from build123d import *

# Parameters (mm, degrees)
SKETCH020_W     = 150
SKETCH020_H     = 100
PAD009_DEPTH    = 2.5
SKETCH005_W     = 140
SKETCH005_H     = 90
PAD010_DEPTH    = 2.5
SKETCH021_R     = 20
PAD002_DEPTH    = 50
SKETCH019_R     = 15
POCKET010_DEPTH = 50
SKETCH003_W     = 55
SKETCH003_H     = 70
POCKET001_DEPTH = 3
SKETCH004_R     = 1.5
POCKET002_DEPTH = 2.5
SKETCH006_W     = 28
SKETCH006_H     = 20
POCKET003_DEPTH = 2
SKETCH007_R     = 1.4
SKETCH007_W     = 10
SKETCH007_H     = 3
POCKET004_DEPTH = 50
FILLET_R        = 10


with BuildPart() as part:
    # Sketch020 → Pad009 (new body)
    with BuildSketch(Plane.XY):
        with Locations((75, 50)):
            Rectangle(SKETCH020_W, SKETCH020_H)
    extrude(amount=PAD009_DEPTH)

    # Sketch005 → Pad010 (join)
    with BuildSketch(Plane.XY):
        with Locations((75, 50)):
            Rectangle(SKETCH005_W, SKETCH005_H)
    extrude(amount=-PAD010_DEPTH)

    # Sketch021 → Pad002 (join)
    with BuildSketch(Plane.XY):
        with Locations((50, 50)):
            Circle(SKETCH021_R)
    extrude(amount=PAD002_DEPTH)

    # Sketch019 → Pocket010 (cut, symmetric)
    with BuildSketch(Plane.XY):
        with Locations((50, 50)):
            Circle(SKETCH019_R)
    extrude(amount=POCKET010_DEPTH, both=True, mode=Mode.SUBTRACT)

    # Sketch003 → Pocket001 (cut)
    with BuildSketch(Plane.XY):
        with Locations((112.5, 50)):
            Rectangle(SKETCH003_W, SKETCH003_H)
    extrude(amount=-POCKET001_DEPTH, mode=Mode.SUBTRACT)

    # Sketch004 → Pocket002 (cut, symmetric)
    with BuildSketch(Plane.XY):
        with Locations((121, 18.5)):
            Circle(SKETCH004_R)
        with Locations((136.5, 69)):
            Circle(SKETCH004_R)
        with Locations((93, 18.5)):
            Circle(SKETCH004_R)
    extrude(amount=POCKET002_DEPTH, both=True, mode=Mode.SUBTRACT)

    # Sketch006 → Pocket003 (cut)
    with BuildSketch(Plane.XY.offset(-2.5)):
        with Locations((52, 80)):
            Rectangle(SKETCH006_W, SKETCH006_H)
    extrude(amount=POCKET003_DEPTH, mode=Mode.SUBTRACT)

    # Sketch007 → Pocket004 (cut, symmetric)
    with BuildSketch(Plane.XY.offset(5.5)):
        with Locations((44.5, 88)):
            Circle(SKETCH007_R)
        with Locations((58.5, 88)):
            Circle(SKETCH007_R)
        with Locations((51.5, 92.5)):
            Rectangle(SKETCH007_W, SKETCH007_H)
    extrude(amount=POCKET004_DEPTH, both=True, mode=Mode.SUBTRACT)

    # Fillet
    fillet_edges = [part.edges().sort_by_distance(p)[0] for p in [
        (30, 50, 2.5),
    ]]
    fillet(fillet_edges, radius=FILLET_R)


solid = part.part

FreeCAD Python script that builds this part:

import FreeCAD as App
import Part
import Sketcher
from FreeCAD import Vector


def edges_at(feature, points):
    """Names of the edges that pass closest to the given points."""
    edges = feature.Shape.Edges
    near = lambda p: min(range(len(edges)), key=lambda i: edges[i].distToShape(Part.Vertex(*p))[0])
    return sorted({f"Edge{near(p) + 1}" for p in points})


def add_polygon(sketch, points):
    """Adds a closed chain of lines whose ends are joined by coincident constraints."""
    first, n = sketch.GeometryCount, len(points)
    for a, b in zip(points, points[1:] + points[:1]):
        sketch.addGeometry(Part.LineSegment(App.Vector(*a, 0), App.Vector(*b, 0)), False)
    for i in range(n):
        sketch.addConstraint(Sketcher.Constraint("Coincident", first + i, 2, first + (i + 1) % n, 1))

doc = App.newDocument("Part")
body = doc.addObject("PartDesign::Body", "Body")

# Sketch on XY plane
sketch1 = body.newObject("Sketcher::SketchObject", "Sketch")
sketch1.AttachmentSupport = (doc.getObject("XY_Plane"), [""])
sketch1.MapMode = "FlatFace"
add_polygon(sketch1, [(0, 100), (0, 0), (150, 0), (150, 100)])  # lines 0-3
sketch1.addConstraint(Sketcher.Constraint("Vertical", 0))
sketch1.addConstraint(Sketcher.Constraint("Horizontal", 1))
sketch1.addConstraint(Sketcher.Constraint("Vertical", 2))
sketch1.addConstraint(Sketcher.Constraint("Horizontal", 3))
sketch1.addConstraint(Sketcher.Constraint("Coincident", 0, 2, -1, 1))
sketch1.addConstraint(Sketcher.Constraint("DistanceX", 1, 1, 1, 2, 150.0))
sketch1.addConstraint(Sketcher.Constraint("DistanceY", 0, 2, 0, 1, 100.0))
pad1 = body.newObject("PartDesign::Pad", "Pad")
pad1.Profile = sketch1
pad1.Length = 2.5

# Sketch on XY plane
sketch2 = body.newObject("Sketcher::SketchObject", "Sketch001")
sketch2.AttachmentSupport = (doc.getObject("XY_Plane"), [""])
sketch2.MapMode = "FlatFace"
add_polygon(sketch2, [(5, 95), (5, 5), (145, 5), (145, 95)])  # lines 0-3
sketch2.addConstraint(Sketcher.Constraint("Vertical", 0))
sketch2.addConstraint(Sketcher.Constraint("Horizontal", 1))
sketch2.addConstraint(Sketcher.Constraint("Vertical", 2))
sketch2.addConstraint(Sketcher.Constraint("Horizontal", 3))
sketch2.addConstraint(Sketcher.Constraint("DistanceX", 1, 1, 1, 2, 140.0))
sketch2.addConstraint(Sketcher.Constraint("DistanceY", 0, 2, 0, 1, 90.0))
sketch2.addConstraint(Sketcher.Constraint("DistanceX", -1, 1, 0, 2, 5.0))
sketch2.addConstraint(Sketcher.Constraint("DistanceY", -1, 1, 0, 2, 5.0))
pad2 = body.newObject("PartDesign::Pad", "Pad001")
pad2.Profile = sketch2
pad2.Length = 2.5
pad2.Reversed = True

# Sketch on XY plane
sketch3 = body.newObject("Sketcher::SketchObject", "Sketch002")
sketch3.AttachmentSupport = (doc.getObject("XY_Plane"), [""])
sketch3.MapMode = "FlatFace"
sketch3.addGeometry(Part.Circle(Vector(50, 50, 0), Vector(0, 0, 1), 20), False)
sketch3.addConstraint(Sketcher.Constraint("Diameter", 0, 40.0))
sketch3.addConstraint(Sketcher.Constraint("DistanceX", -1, 1, 0, 3, 50.0))
sketch3.addConstraint(Sketcher.Constraint("DistanceY", -1, 1, 0, 3, 50.0))
pad3 = body.newObject("PartDesign::Pad", "Pad002")
pad3.Profile = sketch3
pad3.Length = 50

# Sketch on XY plane
sketch4 = body.newObject("Sketcher::SketchObject", "Sketch003")
sketch4.AttachmentSupport = (doc.getObject("XY_Plane"), [""])
sketch4.MapMode = "FlatFace"
sketch4.addGeometry(Part.Circle(Vector(50, 50, 0), Vector(0, 0, 1), 15), False)
sketch4.addConstraint(Sketcher.Constraint("Diameter", 0, 30.0))
sketch4.addConstraint(Sketcher.Constraint("DistanceX", -1, 1, 0, 3, 50.0))
sketch4.addConstraint(Sketcher.Constraint("DistanceY", -1, 1, 0, 3, 50.0))
pocket1 = body.newObject("PartDesign::Pocket", "Pocket")
pocket1.Profile = sketch4
pocket1.Length = 100
pocket1.Midplane = True

# Sketch on XY plane
sketch5 = body.newObject("Sketcher::SketchObject", "Sketch004")
sketch5.AttachmentSupport = (doc.getObject("XY_Plane"), [""])
sketch5.MapMode = "FlatFace"
add_polygon(sketch5, [(85, 85), (85, 15), (140, 15), (140, 85)])  # lines 0-3
sketch5.addConstraint(Sketcher.Constraint("Vertical", 0))
sketch5.addConstraint(Sketcher.Constraint("Horizontal", 1))
sketch5.addConstraint(Sketcher.Constraint("Vertical", 2))
sketch5.addConstraint(Sketcher.Constraint("Horizontal", 3))
sketch5.addConstraint(Sketcher.Constraint("DistanceX", 1, 1, 1, 2, 55.0))
sketch5.addConstraint(Sketcher.Constraint("DistanceY", 0, 2, 0, 1, 70.0))
sketch5.addConstraint(Sketcher.Constraint("DistanceX", -1, 1, 0, 2, 85.0))
sketch5.addConstraint(Sketcher.Constraint("DistanceY", -1, 1, 0, 2, 15.0))
pocket2 = body.newObject("PartDesign::Pocket", "Pocket001")
pocket2.Profile = sketch5
pocket2.Length = 3

# Sketch on XY plane
sketch6 = body.newObject("Sketcher::SketchObject", "Sketch005")
sketch6.AttachmentSupport = (doc.getObject("XY_Plane"), [""])
sketch6.MapMode = "FlatFace"
sketch6.addGeometry(Part.Circle(Vector(121, 18.5, 0), Vector(0, 0, 1), 1.5), False)
sketch6.addGeometry(Part.Circle(Vector(136.5, 69, 0), Vector(0, 0, 1), 1.5), False)
sketch6.addGeometry(Part.Circle(Vector(93, 18.5, 0), Vector(0, 0, 1), 1.5), False)
sketch6.addConstraint(Sketcher.Constraint("Equal", 0, 1))
sketch6.addConstraint(Sketcher.Constraint("Equal", 1, 2))
sketch6.addConstraint(Sketcher.Constraint("Horizontal", 0, 3, 2, 3))
sketch6.addConstraint(Sketcher.Constraint("Diameter", 0, 3.0))
sketch6.addConstraint(Sketcher.Constraint("DistanceX", -1, 1, 0, 3, 121.0))
sketch6.addConstraint(Sketcher.Constraint("DistanceY", -1, 1, 1, 3, 69.0))
sketch6.addConstraint(Sketcher.Constraint("DistanceX", -1, 1, 2, 3, 93.0))
sketch6.addConstraint(Sketcher.Constraint("DistanceY", -1, 1, 0, 3, 18.5))
sketch6.addConstraint(Sketcher.Constraint("DistanceX", -1, 1, 1, 3, 136.5))
pocket3 = body.newObject("PartDesign::Pocket", "Pocket002")
pocket3.Profile = sketch6
pocket3.Length = 5
pocket3.Midplane = True

# Sketch on XY plane
sketch7 = body.newObject("Sketcher::SketchObject", "Sketch006")
sketch7.AttachmentSupport = (doc.getObject("XY_Plane"), [""])
sketch7.MapMode = "FlatFace"
sketch7.AttachmentOffset = App.Placement(Vector(0, 0, -2.5), App.Rotation())
add_polygon(sketch7, [(38, 90), (38, 70), (66, 70), (66, 90)])  # lines 0-3
sketch7.addConstraint(Sketcher.Constraint("Vertical", 0))
sketch7.addConstraint(Sketcher.Constraint("Horizontal", 1))
sketch7.addConstraint(Sketcher.Constraint("Vertical", 2))
sketch7.addConstraint(Sketcher.Constraint("Horizontal", 3))
sketch7.addConstraint(Sketcher.Constraint("DistanceX", 1, 1, 1, 2, 28.0))
sketch7.addConstraint(Sketcher.Constraint("DistanceY", 0, 2, 0, 1, 20.0))
sketch7.addConstraint(Sketcher.Constraint("DistanceX", -1, 1, 0, 2, 38.0))
sketch7.addConstraint(Sketcher.Constraint("DistanceY", -1, 1, 0, 2, 70.0))
pocket4 = body.newObject("PartDesign::Pocket", "Pocket003")
pocket4.Profile = sketch7
pocket4.Length = 2
pocket4.Reversed = True

# Sketch on XY plane
sketch8 = body.newObject("Sketcher::SketchObject", "Sketch007")
sketch8.AttachmentSupport = (doc.getObject("XY_Plane"), [""])
sketch8.MapMode = "FlatFace"
sketch8.AttachmentOffset = App.Placement(Vector(0, 0, 5.5), App.Rotation())
sketch8.addGeometry(Part.Circle(Vector(44.5, 88, 0), Vector(0, 0, 1), 1.4), False)  # 0
sketch8.addGeometry(Part.Circle(Vector(58.5, 88, 0), Vector(0, 0, 1), 1.4), False)  # 1
add_polygon(sketch8, [(46.5, 94), (46.5, 91), (56.5, 91), (56.5, 94)])  # lines 2-5
sketch8.addConstraint(Sketcher.Constraint("Vertical", 2))
sketch8.addConstraint(Sketcher.Constraint("Horizontal", 3))
sketch8.addConstraint(Sketcher.Constraint("Vertical", 4))
sketch8.addConstraint(Sketcher.Constraint("Horizontal", 5))
sketch8.addConstraint(Sketcher.Constraint("Equal", 0, 1))
sketch8.addConstraint(Sketcher.Constraint("Horizontal", 0, 3, 1, 3))
sketch8.addConstraint(Sketcher.Constraint("Diameter", 0, 2.8))
sketch8.addConstraint(Sketcher.Constraint("DistanceX", 3, 1, 3, 2, 10.0))
sketch8.addConstraint(Sketcher.Constraint("DistanceY", 2, 2, 2, 1, 3.0))
sketch8.addConstraint(Sketcher.Constraint("DistanceY", -1, 1, 0, 3, 88.0))
sketch8.addConstraint(Sketcher.Constraint("DistanceY", -1, 1, 2, 2, 91.0))
sketch8.addConstraint(Sketcher.Constraint("DistanceX", 0, 3, 1, 3, 14.0))
sketch8.addConstraint(Sketcher.Constraint("DistanceX", 0, 3, 2, 2, 2.0))
sketch8.addConstraint(Sketcher.Constraint("DistanceX", -1, 1, 0, 3, 44.5))
pocket5 = body.newObject("PartDesign::Pocket", "Pocket004")
pocket5.Profile = sketch8
pocket5.Length = 100
pocket5.Midplane = True
doc.recompute()

fillet = body.newObject("PartDesign::Fillet", "Fillet")
fillet.Base = (pocket5, edges_at(pocket5, [(30, 50, 2.5)]))
fillet.Radius = 10

doc.recompute()
